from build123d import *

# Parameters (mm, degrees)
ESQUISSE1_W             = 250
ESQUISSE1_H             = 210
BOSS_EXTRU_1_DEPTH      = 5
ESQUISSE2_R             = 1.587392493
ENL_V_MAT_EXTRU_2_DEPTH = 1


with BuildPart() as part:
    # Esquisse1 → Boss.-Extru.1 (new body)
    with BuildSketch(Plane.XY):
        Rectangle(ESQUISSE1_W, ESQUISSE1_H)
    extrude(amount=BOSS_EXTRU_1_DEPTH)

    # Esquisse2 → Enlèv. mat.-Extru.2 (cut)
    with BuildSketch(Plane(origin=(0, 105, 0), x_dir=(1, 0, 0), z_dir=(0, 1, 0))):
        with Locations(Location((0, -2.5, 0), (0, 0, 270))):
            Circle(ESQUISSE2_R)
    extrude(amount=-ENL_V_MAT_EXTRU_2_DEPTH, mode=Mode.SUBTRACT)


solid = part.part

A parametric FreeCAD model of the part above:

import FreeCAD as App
import Part
import Sketcher

V = App.Vector


def add_polygon(sketch, points):
    """Adds a closed chain of lines whose ends are joined by coincident constraints."""
    first, n = sketch.GeometryCount, len(points)
    for a, b in zip(points, points[1:] + points[:1]):
        sketch.addGeometry(Part.LineSegment(App.Vector(*a, 0), App.Vector(*b, 0)), False)
    for i in range(n):
        sketch.addConstraint(Sketcher.Constraint("Coincident", first + i, 2, first + (i + 1) % n, 1))

doc = App.newDocument("Part")
params = doc.addObject("Spreadsheet::Sheet", "Params")
for row, (alias, value) in enumerate([
    ("sketch1_width", "250 mm"),
    ("sketch1_height", "210 mm"),
    ("pad1_length", "5 mm"),
    ("pocket1_length", "1 mm"),
], start=1):
    params.set(f"A{row}", alias)
    params.set(f"B{row}", "=" + value)
    params.setAlias(f"B{row}", alias)

body = doc.addObject("PartDesign::Body", "Body")

sketch1 = doc.addObject("Sketcher::SketchObject", "Sketch")
body.addObject(sketch1)
sketch1.AttachmentSupport = (doc.XY_Plane, [""])
sketch1.MapMode = "FlatFace"
add_polygon(sketch1, [(-125, 105), (-125, -105), (125, -105), (125, 105)])
sketch1.addConstraint([
    Sketcher.Constraint("Vertical", 0),
    Sketcher.Constraint("Horizontal", 1),
    Sketcher.Constraint("Vertical", 2),
    Sketcher.Constraint("Horizontal", 3),
    Sketcher.Constraint("Symmetric", 0, 2, 2, 2, -1, 1),
    Sketcher.Constraint("DistanceX", 1, 1, 1, 2, 250.0),
    Sketcher.Constraint("DistanceY", 0, 2, 0, 1, 210.0),
])
sketch1.setExpression("Constraints[9]", "Params.sketch1_width")
sketch1.setExpression("Constraints[10]", "Params.sketch1_height")
pad1 = doc.addObject("PartDesign::Pad", "Pad")
body.addObject(pad1)
pad1.Profile = sketch1
pad1.setExpression("Length", "Params.pad1_length")

sketch2 = doc.addObject("Sketcher::SketchObject", "Sketch001")
body.addObject(sketch2)
sketch2.AttachmentSupport = (doc.XZ_Plane, [""])
sketch2.MapMode = "FlatFace"
sketch2.AttachmentOffset = App.Placement(V(0, 0, -105), App.Rotation())
sketch2.addGeometry(Part.Circle(V(0, 2.5, 0), V(0, 0, 1), 1.587392), False)
sketch2.addConstraint([
    Sketcher.Constraint("PointOnObject", 0, 3, -2),
    Sketcher.Constraint("DistanceY", -1, 1, 0, 3, 2.5),
    Sketcher.Constraint("Diameter", 0, 3.174785),
])
pocket1 = doc.addObject("PartDesign::Pocket", "Pocket")
body.addObject(pocket1)
pocket1.Profile = sketch2
pocket1.setExpression("Length", "Params.pocket1_length")
pocket1.Reversed = True

doc.recompute()
